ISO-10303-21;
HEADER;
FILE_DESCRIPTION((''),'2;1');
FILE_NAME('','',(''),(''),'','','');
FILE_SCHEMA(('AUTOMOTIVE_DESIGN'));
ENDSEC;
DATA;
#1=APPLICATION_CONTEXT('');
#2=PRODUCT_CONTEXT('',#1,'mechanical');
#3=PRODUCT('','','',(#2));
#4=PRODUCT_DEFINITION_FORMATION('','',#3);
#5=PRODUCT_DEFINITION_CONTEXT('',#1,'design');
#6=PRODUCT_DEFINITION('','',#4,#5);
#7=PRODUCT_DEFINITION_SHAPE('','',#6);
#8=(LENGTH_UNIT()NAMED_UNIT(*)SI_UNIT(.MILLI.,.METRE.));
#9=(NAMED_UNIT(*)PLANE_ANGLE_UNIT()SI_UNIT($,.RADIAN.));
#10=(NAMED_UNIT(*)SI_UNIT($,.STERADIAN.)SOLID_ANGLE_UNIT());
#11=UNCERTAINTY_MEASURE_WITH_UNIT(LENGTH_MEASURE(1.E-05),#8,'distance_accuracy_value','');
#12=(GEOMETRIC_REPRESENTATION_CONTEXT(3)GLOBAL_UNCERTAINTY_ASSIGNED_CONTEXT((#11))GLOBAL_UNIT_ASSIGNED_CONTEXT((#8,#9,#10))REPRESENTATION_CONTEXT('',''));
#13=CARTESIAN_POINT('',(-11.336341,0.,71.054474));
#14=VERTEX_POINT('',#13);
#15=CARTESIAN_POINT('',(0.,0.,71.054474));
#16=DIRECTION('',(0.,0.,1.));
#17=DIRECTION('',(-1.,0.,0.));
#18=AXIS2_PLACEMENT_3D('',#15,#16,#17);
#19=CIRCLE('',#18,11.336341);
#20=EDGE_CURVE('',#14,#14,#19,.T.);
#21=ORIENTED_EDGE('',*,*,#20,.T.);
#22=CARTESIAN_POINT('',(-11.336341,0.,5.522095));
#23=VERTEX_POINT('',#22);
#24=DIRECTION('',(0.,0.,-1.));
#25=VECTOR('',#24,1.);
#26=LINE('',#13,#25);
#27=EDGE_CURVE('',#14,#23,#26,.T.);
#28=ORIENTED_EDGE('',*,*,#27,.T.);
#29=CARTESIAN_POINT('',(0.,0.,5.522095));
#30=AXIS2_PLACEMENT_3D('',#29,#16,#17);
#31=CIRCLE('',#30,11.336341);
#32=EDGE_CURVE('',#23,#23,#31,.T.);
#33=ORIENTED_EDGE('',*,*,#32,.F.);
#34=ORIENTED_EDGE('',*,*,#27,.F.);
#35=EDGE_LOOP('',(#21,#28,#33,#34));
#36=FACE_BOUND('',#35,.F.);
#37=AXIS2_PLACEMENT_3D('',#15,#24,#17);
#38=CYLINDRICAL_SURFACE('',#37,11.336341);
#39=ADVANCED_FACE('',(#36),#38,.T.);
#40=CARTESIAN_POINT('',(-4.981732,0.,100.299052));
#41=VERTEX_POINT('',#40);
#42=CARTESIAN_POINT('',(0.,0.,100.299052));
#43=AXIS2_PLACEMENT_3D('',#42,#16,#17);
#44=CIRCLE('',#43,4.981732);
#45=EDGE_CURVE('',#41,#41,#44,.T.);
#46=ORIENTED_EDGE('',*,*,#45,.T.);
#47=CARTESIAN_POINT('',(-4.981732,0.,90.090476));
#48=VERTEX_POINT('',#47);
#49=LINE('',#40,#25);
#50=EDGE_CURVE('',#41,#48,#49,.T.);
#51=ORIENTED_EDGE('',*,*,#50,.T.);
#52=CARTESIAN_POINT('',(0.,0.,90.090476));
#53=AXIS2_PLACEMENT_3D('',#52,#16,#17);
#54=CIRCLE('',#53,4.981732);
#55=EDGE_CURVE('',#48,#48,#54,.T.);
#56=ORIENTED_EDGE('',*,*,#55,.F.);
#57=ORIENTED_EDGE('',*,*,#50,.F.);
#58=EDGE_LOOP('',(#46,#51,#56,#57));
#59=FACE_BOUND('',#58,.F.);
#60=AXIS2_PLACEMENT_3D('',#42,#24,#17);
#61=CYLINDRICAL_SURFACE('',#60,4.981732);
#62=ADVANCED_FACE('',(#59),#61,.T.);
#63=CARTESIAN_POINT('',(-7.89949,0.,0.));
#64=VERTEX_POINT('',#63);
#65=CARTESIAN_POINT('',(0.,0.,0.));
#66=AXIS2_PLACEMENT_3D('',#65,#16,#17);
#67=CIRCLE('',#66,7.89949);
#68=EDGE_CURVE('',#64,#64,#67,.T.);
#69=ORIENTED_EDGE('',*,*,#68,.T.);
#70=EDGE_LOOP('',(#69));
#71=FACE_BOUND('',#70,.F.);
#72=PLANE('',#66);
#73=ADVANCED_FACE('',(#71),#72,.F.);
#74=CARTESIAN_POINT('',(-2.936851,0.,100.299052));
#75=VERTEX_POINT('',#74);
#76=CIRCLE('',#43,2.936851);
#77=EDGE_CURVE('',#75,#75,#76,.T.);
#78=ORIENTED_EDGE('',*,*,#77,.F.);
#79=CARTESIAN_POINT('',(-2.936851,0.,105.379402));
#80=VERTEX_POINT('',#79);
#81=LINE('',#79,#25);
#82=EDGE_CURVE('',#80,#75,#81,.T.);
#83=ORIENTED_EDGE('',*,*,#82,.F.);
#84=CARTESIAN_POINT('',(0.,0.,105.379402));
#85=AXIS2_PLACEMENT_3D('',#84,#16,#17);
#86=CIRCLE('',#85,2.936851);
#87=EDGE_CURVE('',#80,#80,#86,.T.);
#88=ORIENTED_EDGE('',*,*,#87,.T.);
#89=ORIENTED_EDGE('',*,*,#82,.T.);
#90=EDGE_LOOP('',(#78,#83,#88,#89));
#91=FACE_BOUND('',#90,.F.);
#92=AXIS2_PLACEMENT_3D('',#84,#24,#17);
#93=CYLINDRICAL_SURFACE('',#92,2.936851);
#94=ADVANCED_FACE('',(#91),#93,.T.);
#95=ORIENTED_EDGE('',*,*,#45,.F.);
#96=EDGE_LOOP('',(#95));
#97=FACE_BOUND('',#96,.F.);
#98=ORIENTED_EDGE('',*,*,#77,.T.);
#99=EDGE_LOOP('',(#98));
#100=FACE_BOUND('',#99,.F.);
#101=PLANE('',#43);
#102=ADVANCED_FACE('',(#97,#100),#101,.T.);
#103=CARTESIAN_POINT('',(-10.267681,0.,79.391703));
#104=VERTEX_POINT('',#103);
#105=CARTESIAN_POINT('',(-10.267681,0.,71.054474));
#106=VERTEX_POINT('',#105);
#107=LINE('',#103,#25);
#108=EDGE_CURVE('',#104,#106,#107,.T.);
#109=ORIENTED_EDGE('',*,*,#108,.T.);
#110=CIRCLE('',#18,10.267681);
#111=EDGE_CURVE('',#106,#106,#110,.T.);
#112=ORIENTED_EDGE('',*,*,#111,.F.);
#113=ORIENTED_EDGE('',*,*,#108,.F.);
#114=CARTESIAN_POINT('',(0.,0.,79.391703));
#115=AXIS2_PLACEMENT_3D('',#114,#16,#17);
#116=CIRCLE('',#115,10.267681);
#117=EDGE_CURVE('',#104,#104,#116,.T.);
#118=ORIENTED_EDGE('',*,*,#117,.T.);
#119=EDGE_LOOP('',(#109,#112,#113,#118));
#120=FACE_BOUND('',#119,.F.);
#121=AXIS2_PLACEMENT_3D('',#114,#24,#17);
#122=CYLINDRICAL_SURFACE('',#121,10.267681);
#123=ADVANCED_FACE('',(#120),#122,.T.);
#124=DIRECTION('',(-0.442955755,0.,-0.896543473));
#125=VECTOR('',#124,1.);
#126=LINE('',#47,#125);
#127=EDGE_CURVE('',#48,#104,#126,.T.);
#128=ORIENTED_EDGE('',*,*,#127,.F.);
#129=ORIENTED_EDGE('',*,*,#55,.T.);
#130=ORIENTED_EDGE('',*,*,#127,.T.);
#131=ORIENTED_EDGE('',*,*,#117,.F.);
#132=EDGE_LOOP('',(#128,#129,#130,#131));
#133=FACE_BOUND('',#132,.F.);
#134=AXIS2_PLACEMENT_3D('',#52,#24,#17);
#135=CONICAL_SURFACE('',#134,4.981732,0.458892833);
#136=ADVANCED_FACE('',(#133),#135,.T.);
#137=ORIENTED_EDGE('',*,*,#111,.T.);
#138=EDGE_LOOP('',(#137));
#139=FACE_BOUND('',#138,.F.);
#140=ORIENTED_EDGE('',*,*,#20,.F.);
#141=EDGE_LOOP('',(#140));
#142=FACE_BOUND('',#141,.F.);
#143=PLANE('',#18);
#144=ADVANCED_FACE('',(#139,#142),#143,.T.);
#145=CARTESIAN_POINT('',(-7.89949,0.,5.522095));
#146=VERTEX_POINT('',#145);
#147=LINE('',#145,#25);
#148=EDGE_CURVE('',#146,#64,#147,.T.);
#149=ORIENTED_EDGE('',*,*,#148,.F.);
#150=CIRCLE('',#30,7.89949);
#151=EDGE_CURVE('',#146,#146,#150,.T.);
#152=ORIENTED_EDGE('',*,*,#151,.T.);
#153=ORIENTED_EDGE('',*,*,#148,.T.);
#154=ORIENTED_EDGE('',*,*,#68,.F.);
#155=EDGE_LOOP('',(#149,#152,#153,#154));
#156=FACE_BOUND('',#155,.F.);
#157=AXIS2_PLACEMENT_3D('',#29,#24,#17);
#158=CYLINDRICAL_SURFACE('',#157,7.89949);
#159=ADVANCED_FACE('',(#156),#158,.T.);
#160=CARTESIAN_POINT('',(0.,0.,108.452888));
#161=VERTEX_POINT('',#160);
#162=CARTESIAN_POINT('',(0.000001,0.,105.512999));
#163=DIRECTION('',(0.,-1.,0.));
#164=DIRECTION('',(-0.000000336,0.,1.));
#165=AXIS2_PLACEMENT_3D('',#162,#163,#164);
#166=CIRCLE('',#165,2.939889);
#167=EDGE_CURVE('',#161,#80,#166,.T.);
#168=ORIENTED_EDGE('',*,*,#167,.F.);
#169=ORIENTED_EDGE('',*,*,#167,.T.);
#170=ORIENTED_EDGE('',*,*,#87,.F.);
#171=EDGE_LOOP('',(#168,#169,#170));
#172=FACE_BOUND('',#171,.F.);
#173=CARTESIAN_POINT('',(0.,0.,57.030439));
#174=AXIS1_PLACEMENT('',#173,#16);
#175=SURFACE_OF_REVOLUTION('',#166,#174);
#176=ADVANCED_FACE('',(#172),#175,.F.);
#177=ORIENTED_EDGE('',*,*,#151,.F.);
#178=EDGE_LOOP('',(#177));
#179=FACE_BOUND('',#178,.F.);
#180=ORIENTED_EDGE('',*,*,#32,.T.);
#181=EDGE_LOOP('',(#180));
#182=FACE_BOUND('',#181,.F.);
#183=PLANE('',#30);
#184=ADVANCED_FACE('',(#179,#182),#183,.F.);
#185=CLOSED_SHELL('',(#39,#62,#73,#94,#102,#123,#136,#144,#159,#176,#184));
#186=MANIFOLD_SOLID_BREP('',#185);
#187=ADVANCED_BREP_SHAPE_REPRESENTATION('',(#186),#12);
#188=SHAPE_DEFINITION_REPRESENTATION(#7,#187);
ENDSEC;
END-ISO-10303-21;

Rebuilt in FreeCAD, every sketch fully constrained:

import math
import FreeCAD as App
import Part
import Sketcher

V = App.Vector
Q = App.Units.Quantity

doc = App.newDocument("Part")
body = doc.addObject("PartDesign::Body", "Body")

sketch1 = body.newObject("Sketcher::SketchObject", "Sketch")
sketch1.AttachmentSupport = (doc.getObject("XZ_Plane"), [""])
sketch1.MapMode = "FlatFace"
sketch1.addGeometry([
    Part.LineSegment(V(-7.89949, 0, 0), V(0, 0, 0)),
    Part.LineSegment(V(0, 0, 0), V(0, 108.452888, 0)),
    Part.ArcOfCircle(Part.Circle(V(0.000001, 105.512999, 0), V(0, 0, 1), 2.939889), math.radians(90.000019), math.radians(182.60458)),
    Part.LineSegment(V(-2.936851, 105.379402, 0), V(-2.936851, 100.299052, 0)),
    Part.LineSegment(V(-2.936851, 100.299052, 0), V(-4.981732, 100.299052, 0)),
    Part.LineSegment(V(-4.981732, 100.299052, 0), V(-4.981732, 90.090476, 0)),
    Part.LineSegment(V(-4.981732, 90.090476, 0), V(-10.267681, 79.391703, 0)),
    Part.LineSegment(V(-10.267681, 79.391703, 0), V(-10.267681, 71.054474, 0)),
    Part.LineSegment(V(-10.267681, 71.054474, 0), V(-11.336341, 71.054474, 0)),
    Part.LineSegment(V(-11.336341, 71.054474, 0), V(-11.336341, 5.522095, 0)),
    Part.LineSegment(V(-11.336341, 5.522095, 0), V(-7.89949, 5.522095, 0)),
    Part.LineSegment(V(-7.89949, 5.522095, 0), V(-7.89949, 0, 0)),
], False)
sketch1.addConstraint([
    Sketcher.Constraint("Coincident", 0, 2, 1, 1),
    Sketcher.Constraint("Coincident", 1, 2, 2, 1),
    Sketcher.Constraint("Coincident", 2, 2, 3, 1),
    Sketcher.Constraint("Coincident", 3, 2, 4, 1),
    Sketcher.Constraint("Coincident", 4, 2, 5, 1),
    Sketcher.Constraint("Coincident", 5, 2, 6, 1),
    Sketcher.Constraint("Coincident", 6, 2, 7, 1),
    Sketcher.Constraint("Coincident", 7, 2, 8, 1),
    Sketcher.Constraint("Coincident", 8, 2, 9, 1),
    Sketcher.Constraint("Coincident", 9, 2, 10, 1),
    Sketcher.Constraint("Coincident", 10, 2, 11, 1),
    Sketcher.Constraint("Coincident", 11, 2, 0, 1),
    Sketcher.Constraint("Horizontal", 0),
    Sketcher.Constraint("Vertical", 1),
    Sketcher.Constraint("Vertical", 3),
    Sketcher.Constraint("Horizontal", 4),
    Sketcher.Constraint("Vertical", 5),
    Sketcher.Constraint("Vertical", 7),
    Sketcher.Constraint("Horizontal", 8),
    Sketcher.Constraint("Vertical", 9),
    Sketcher.Constraint("Horizontal", 10),
    Sketcher.Constraint("Vertical", 11),
    Sketcher.Constraint("Coincident", 0, 2, -1, 1),
    Sketcher.Constraint("PointOnObject", 2, 3, -2),
    Sketcher.Constraint("Radius", 2, Q("2.939889 mm")),
    Sketcher.Constraint("DistanceY", -1, 1, 2, 3, Q("105.512999 mm")),
    Sketcher.Constraint("DistanceY", 7, 2, 5, 2, Q("19.036002 mm")),
    Sketcher.Constraint("DistanceX", 0, 1, 0, 2, Q("7.89949 mm")),
    Sketcher.Constraint("DistanceX", 4, 2, 4, 1, Q("2.044881 mm")),
    Sketcher.Constraint("DistanceX", 8, 2, 8, 1, Q("1.06866 mm")),
    Sketcher.Constraint("DistanceX", 10, 1, 10, 2, Q("3.436851 mm")),
    Sketcher.Constraint("DistanceY", 3, 2, 3, 1, Q("5.08035 mm")),
    Sketcher.Constraint("DistanceY", 7, 2, 7, 1, Q("8.337229 mm")),
    Sketcher.Constraint("DistanceY", 9, 2, 9, 1, Q("65.532379 mm")),
    Sketcher.Constraint("DistanceY", -1, 1, 2, 2, Q("105.379402 mm")),
    Sketcher.Constraint("DistanceY", 6, 2, 2, 2, Q("25.987699 mm")),
])
revolution = body.newObject("PartDesign::Revolution", "Revolution")
revolution.Profile = sketch1
revolution.ReferenceAxis = (sketch1, ["V_Axis"])
revolution.Angle = 360

doc.recompute()
